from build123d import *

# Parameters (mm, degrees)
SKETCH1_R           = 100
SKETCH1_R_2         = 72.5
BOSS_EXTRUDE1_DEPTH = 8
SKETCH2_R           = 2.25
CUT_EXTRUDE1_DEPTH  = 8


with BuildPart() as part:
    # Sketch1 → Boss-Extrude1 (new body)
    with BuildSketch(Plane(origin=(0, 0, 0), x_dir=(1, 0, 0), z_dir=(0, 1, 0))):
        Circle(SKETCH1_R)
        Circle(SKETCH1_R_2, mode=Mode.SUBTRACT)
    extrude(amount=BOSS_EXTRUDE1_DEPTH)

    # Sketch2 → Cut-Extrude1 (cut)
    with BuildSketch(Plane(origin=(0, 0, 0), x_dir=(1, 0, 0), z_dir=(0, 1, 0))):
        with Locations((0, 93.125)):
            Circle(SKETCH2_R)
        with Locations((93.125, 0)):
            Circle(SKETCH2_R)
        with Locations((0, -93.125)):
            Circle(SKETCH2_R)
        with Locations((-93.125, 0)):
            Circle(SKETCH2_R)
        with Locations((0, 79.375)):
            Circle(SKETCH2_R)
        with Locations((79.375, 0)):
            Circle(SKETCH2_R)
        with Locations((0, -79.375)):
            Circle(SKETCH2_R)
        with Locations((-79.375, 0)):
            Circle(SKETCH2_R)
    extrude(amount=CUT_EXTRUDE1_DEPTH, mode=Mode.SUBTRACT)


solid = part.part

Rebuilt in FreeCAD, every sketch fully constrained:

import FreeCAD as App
import Part
import Sketcher
from FreeCAD import Vector

doc = App.newDocument("Part")
body = doc.addObject("PartDesign::Body", "Body")

# Sketch on XZ plane
sketch1 = body.newObject("Sketcher::SketchObject", "Sketch")
sketch1.AttachmentSupport = (doc.getObject("XZ_Plane"), [""])
sketch1.MapMode = "FlatFace"
sketch1.addGeometry([
    Part.Circle(Vector(0, 0, 0), Vector(0, 0, 1), 100),
    Part.Circle(Vector(0, 0, 0), Vector(0, 0, 1), 72),
], False)
sketch1.addConstraint([
    Sketcher.Constraint("Coincident", 0, 3, -1, 1),
    Sketcher.Constraint("Coincident", 1, 3, -1, 1),
    Sketcher.Constraint("Diameter", 0, 200.0),
    Sketcher.Constraint("Diameter", 1, 145.0),
])
pad1 = body.newObject("PartDesign::Pad", "Pad")
pad1.Profile = sketch1
pad1.Length = 8
pad1.Reversed = True

# Sketch on XZ plane
sketch2 = body.newObject("Sketcher::SketchObject", "Sketch001")
sketch2.AttachmentSupport = (doc.getObject("XZ_Plane"), [""])
sketch2.MapMode = "FlatFace"
sketch2.addGeometry([
    Part.Circle(Vector(0, -93.1, 0), Vector(0, 0, 1), 2.2),  # 0
    Part.Circle(Vector(93.1, 0, 0), Vector(0, 0, 1), 2.2),  # 1
    Part.Circle(Vector(0, 93.1, 0), Vector(0, 0, 1), 2.2),  # 2
    Part.Circle(Vector(-93.1, 0, 0), Vector(0, 0, 1), 2.2),  # 3
    Part.Circle(Vector(0, -79.4, 0), Vector(0, 0, 1), 2.2),  # 4
    Part.Circle(Vector(79.4, 0, 0), Vector(0, 0, 1), 2.2),  # 5
    Part.Circle(Vector(0, 79.4, 0), Vector(0, 0, 1), 2.2),  # 6
    Part.Circle(Vector(-79.4, 0, 0), Vector(0, 0, 1), 2.2),  # 7
], False)
sketch2.addConstraint([
    Sketcher.Constraint("Equal", 0, 1),
    Sketcher.Constraint("Equal", 1, 2),
    Sketcher.Constraint("Equal", 2, 3),
    Sketcher.Constraint("Equal", 3, 4),
    Sketcher.Constraint("Equal", 4, 5),
    Sketcher.Constraint("Equal", 5, 6),
    Sketcher.Constraint("Equal", 6, 7),
    Sketcher.Constraint("Symmetric", 0, 3, 2, 3, -1, 1),
    Sketcher.Constraint("Symmetric", 1, 3, 3, 3, -1, 1),
    Sketcher.Constraint("Symmetric", 4, 3, 6, 3, -1, 1),
    Sketcher.Constraint("Symmetric", 5, 3, 7, 3, -1, 1),
    Sketcher.Constraint("PointOnObject", 0, 3, -2),
    Sketcher.Constraint("PointOnObject", 1, 3, -1),
    Sketcher.Constraint("PointOnObject", 4, 3, -2),
    Sketcher.Constraint("PointOnObject", 5, 3, -1),
    Sketcher.Constraint("Diameter", 0, 4.5),
    Sketcher.Constraint("DistanceY", 4, 3, 2, 3, 172.5),
    Sketcher.Constraint("DistanceX", 3, 3, 5, 3, 172.5),
    Sketcher.Constraint("DistanceY", 0, 3, 2, 3, 186.25),
    Sketcher.Constraint("DistanceX", 3, 3, 1, 3, 186.25),
])
pocket1 = body.newObject("PartDesign::Pocket", "Pocket")
pocket1.Profile = sketch2
pocket1.Length = 8

doc.recompute()
